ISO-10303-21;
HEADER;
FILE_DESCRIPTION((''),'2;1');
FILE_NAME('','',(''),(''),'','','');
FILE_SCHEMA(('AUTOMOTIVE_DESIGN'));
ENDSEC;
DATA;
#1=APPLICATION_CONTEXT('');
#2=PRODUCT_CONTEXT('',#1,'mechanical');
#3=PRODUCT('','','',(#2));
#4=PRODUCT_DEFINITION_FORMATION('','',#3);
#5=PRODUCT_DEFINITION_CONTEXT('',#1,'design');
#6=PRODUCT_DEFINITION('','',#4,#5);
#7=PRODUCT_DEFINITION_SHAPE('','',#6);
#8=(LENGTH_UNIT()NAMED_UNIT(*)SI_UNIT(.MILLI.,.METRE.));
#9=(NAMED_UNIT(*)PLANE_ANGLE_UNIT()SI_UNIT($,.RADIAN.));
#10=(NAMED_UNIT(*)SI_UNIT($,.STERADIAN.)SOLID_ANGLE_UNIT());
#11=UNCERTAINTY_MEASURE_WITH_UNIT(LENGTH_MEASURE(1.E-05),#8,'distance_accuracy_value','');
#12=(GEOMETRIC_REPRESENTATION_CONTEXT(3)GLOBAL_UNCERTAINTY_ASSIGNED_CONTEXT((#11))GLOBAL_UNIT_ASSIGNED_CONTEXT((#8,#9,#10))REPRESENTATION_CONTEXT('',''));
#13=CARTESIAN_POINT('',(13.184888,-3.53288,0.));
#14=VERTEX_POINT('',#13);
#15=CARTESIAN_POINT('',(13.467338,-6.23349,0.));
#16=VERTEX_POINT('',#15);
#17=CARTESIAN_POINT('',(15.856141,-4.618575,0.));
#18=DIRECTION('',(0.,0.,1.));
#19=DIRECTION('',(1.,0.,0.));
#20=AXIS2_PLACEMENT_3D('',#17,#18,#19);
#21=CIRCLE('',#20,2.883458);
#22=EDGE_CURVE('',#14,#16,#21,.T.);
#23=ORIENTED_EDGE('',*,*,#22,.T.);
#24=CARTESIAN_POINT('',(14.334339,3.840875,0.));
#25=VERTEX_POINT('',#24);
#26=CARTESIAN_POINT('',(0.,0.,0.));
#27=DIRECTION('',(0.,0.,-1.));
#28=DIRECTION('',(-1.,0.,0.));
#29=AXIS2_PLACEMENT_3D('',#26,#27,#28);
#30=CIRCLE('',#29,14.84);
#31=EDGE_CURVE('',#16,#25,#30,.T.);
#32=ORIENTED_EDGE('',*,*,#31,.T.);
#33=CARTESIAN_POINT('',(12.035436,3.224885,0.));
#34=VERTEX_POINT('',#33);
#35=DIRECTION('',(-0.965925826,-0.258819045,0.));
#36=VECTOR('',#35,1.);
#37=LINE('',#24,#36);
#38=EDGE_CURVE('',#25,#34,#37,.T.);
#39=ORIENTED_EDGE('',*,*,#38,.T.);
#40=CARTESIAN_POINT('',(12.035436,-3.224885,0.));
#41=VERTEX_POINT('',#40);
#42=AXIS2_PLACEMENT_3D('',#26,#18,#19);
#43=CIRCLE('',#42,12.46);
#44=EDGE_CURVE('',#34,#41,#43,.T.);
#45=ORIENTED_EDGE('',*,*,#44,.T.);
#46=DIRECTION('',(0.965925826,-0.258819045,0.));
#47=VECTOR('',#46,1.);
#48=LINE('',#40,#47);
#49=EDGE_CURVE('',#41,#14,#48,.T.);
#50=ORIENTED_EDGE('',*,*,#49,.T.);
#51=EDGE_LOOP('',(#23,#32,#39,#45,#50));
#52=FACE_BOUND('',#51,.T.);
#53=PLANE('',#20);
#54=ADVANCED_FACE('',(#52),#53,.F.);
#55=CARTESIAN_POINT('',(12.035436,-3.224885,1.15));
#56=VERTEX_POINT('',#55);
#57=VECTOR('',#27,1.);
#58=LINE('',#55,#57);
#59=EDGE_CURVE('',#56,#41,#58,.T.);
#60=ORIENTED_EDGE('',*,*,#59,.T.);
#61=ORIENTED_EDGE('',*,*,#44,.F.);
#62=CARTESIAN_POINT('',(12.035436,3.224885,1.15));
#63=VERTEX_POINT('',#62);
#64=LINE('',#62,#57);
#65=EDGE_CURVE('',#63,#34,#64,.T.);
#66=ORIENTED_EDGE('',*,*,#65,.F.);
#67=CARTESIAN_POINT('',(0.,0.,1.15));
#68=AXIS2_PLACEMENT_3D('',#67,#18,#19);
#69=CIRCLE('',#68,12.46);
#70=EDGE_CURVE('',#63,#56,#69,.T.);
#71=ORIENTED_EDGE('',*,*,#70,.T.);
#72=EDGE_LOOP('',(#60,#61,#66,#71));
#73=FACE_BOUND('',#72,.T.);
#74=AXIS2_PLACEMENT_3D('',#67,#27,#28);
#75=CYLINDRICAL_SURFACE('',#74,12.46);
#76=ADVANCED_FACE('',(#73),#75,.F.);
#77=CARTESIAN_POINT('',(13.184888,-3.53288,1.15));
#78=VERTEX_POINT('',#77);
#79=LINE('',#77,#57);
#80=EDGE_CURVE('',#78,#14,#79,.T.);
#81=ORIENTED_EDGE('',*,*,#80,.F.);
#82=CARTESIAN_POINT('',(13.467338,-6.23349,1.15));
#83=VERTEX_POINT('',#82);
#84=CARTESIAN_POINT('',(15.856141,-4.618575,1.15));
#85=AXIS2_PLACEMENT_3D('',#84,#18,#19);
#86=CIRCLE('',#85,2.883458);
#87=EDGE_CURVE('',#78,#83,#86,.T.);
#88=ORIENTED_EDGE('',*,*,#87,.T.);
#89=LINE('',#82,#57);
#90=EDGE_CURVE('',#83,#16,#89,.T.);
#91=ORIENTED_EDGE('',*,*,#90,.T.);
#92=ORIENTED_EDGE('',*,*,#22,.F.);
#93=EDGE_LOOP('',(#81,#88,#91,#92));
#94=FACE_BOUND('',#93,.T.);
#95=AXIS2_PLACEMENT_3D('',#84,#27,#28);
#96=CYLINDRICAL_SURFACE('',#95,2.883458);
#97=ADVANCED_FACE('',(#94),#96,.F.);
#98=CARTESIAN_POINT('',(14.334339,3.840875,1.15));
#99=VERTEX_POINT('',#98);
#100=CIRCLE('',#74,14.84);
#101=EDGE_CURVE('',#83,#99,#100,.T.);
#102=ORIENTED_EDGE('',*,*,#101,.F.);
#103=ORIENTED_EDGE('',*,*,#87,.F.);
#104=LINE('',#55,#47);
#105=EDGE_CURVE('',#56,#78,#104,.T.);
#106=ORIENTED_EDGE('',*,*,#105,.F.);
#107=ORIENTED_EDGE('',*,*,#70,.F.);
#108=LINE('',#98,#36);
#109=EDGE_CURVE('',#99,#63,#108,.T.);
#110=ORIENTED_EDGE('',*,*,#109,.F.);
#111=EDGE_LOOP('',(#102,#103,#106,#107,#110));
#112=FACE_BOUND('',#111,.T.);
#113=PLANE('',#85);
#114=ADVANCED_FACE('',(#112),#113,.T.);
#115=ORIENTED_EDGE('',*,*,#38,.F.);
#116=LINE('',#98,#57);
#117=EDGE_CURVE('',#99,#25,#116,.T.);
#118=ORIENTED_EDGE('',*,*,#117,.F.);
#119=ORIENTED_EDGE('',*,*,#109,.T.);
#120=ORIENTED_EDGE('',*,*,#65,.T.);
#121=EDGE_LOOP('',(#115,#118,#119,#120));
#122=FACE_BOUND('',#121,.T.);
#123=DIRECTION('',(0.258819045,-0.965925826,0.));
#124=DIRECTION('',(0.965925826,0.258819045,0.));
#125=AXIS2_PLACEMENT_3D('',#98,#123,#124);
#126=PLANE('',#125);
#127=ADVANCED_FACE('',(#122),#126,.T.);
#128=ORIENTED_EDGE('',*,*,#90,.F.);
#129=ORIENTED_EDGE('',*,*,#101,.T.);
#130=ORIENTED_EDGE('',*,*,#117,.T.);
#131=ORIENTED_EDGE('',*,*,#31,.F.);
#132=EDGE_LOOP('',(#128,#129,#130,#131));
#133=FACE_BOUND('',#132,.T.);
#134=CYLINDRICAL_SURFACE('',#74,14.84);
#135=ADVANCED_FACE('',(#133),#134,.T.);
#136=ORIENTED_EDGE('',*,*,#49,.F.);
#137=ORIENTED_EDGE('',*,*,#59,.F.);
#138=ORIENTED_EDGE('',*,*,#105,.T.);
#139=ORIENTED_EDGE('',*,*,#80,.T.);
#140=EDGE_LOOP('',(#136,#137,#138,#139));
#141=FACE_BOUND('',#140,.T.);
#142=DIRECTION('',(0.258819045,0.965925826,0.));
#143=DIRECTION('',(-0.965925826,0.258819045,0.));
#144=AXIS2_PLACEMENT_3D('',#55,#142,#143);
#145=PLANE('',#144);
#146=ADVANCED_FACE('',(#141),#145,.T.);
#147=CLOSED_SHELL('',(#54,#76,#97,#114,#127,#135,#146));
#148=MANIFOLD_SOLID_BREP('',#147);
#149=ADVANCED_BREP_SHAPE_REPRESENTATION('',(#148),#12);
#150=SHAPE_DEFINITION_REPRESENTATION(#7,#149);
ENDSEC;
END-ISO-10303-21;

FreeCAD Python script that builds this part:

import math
import FreeCAD as App
import Part
import Sketcher
from FreeCAD import Vector
Q = App.Units.Quantity

doc = App.newDocument("Part")
params = doc.addObject("Spreadsheet::Sheet", "Params")
for row, (alias, value) in enumerate([
    ("sketch1_radius", "12.46 mm"),
    ("sketch1_radius2", "14.84 mm"),
    ("sketch1_length", "1.19 mm"),
    ("pad1_length", "1.15 mm"),
], start=1):
    params.set(f"A{row}", alias)
    params.set(f"B{row}", "=" + value)
    params.setAlias(f"B{row}", alias)

body = doc.addObject("PartDesign::Body", "Body")

sketch1 = body.newObject("Sketcher::SketchObject", "Sketch")
sketch1.AttachmentSupport = (doc.getObject("XY_Plane"), [""])
sketch1.MapMode = "FlatFace"
sketch1.addGeometry(Part.LineSegment(Vector(14.3, 3.8, 0), Vector(12, 3.2, 0)), False)
sketch1.addGeometry(Part.ArcOfCircle(Part.Circle(Vector(0, 0, 0), Vector(0, 0, 1), 12.5), math.radians(15), math.radians(345)), False)
sketch1.addGeometry(Part.LineSegment(Vector(12, -3.2, 0), Vector(13.2, -3.5, 0)), False)
sketch1.addGeometry(Part.ArcOfCircle(Part.Circle(Vector(15.9, -4.6, 0), Vector(0, 0, 1), 2.9), math.radians(158), math.radians(214)), False)
sketch1.addGeometry(Part.ArcOfCircle(Part.Circle(Vector(0, 0, 0), Vector(0, 0, 1), 14.8), math.radians(15), math.radians(335)), False)
sketch1.addConstraint(Sketcher.Constraint("Coincident", 0, 2, 1, 1))
sketch1.addConstraint(Sketcher.Constraint("Coincident", 1, 2, 2, 1))
sketch1.addConstraint(Sketcher.Constraint("Coincident", 2, 2, 3, 1))
sketch1.addConstraint(Sketcher.Constraint("Coincident", 3, 2, 4, 2))
sketch1.addConstraint(Sketcher.Constraint("Coincident", 4, 1, 0, 1))
sketch1.addConstraint(Sketcher.Constraint("Coincident", 1, 3, -1, 1))
sketch1.addConstraint(Sketcher.Constraint("Coincident", 4, 3, -1, 1))
sketch1.addConstraint(Sketcher.Constraint("Vertical", 0, 2, 1, 2))
sketch1.addConstraint(Sketcher.Constraint("Angle", 0, Q("-165 deg")))
sketch1.addConstraint(Sketcher.Constraint("Angle", 2, Q("-15 deg")))
sketch1.addConstraint(Sketcher.Constraint("Radius", 1, 12.46))
sketch1.addConstraint(Sketcher.Constraint("Radius", 4, 14.84))
sketch1.addConstraint(Sketcher.Constraint("Distance", 2, 1.19))
sketch1.addConstraint(Sketcher.Constraint("Radius", 3, 2.883458))
sketch1.addConstraint(Sketcher.Constraint("DistanceX", 3, 2, 4, 1, 0.867001))
sketch1.addConstraint(Sketcher.Constraint("DistanceX", 4, 1, 3, 3, 1.521802))
sketch1.setExpression("Constraints[10]", "Params.sketch1_radius")
sketch1.setExpression("Constraints[11]", "Params.sketch1_radius2")
sketch1.setExpression("Constraints[12]", "Params.sketch1_length")
pad1 = body.newObject("PartDesign::Pad", "Pad")
pad1.Profile = sketch1
pad1.setExpression("Length", "Params.pad1_length")

doc.recompute()
